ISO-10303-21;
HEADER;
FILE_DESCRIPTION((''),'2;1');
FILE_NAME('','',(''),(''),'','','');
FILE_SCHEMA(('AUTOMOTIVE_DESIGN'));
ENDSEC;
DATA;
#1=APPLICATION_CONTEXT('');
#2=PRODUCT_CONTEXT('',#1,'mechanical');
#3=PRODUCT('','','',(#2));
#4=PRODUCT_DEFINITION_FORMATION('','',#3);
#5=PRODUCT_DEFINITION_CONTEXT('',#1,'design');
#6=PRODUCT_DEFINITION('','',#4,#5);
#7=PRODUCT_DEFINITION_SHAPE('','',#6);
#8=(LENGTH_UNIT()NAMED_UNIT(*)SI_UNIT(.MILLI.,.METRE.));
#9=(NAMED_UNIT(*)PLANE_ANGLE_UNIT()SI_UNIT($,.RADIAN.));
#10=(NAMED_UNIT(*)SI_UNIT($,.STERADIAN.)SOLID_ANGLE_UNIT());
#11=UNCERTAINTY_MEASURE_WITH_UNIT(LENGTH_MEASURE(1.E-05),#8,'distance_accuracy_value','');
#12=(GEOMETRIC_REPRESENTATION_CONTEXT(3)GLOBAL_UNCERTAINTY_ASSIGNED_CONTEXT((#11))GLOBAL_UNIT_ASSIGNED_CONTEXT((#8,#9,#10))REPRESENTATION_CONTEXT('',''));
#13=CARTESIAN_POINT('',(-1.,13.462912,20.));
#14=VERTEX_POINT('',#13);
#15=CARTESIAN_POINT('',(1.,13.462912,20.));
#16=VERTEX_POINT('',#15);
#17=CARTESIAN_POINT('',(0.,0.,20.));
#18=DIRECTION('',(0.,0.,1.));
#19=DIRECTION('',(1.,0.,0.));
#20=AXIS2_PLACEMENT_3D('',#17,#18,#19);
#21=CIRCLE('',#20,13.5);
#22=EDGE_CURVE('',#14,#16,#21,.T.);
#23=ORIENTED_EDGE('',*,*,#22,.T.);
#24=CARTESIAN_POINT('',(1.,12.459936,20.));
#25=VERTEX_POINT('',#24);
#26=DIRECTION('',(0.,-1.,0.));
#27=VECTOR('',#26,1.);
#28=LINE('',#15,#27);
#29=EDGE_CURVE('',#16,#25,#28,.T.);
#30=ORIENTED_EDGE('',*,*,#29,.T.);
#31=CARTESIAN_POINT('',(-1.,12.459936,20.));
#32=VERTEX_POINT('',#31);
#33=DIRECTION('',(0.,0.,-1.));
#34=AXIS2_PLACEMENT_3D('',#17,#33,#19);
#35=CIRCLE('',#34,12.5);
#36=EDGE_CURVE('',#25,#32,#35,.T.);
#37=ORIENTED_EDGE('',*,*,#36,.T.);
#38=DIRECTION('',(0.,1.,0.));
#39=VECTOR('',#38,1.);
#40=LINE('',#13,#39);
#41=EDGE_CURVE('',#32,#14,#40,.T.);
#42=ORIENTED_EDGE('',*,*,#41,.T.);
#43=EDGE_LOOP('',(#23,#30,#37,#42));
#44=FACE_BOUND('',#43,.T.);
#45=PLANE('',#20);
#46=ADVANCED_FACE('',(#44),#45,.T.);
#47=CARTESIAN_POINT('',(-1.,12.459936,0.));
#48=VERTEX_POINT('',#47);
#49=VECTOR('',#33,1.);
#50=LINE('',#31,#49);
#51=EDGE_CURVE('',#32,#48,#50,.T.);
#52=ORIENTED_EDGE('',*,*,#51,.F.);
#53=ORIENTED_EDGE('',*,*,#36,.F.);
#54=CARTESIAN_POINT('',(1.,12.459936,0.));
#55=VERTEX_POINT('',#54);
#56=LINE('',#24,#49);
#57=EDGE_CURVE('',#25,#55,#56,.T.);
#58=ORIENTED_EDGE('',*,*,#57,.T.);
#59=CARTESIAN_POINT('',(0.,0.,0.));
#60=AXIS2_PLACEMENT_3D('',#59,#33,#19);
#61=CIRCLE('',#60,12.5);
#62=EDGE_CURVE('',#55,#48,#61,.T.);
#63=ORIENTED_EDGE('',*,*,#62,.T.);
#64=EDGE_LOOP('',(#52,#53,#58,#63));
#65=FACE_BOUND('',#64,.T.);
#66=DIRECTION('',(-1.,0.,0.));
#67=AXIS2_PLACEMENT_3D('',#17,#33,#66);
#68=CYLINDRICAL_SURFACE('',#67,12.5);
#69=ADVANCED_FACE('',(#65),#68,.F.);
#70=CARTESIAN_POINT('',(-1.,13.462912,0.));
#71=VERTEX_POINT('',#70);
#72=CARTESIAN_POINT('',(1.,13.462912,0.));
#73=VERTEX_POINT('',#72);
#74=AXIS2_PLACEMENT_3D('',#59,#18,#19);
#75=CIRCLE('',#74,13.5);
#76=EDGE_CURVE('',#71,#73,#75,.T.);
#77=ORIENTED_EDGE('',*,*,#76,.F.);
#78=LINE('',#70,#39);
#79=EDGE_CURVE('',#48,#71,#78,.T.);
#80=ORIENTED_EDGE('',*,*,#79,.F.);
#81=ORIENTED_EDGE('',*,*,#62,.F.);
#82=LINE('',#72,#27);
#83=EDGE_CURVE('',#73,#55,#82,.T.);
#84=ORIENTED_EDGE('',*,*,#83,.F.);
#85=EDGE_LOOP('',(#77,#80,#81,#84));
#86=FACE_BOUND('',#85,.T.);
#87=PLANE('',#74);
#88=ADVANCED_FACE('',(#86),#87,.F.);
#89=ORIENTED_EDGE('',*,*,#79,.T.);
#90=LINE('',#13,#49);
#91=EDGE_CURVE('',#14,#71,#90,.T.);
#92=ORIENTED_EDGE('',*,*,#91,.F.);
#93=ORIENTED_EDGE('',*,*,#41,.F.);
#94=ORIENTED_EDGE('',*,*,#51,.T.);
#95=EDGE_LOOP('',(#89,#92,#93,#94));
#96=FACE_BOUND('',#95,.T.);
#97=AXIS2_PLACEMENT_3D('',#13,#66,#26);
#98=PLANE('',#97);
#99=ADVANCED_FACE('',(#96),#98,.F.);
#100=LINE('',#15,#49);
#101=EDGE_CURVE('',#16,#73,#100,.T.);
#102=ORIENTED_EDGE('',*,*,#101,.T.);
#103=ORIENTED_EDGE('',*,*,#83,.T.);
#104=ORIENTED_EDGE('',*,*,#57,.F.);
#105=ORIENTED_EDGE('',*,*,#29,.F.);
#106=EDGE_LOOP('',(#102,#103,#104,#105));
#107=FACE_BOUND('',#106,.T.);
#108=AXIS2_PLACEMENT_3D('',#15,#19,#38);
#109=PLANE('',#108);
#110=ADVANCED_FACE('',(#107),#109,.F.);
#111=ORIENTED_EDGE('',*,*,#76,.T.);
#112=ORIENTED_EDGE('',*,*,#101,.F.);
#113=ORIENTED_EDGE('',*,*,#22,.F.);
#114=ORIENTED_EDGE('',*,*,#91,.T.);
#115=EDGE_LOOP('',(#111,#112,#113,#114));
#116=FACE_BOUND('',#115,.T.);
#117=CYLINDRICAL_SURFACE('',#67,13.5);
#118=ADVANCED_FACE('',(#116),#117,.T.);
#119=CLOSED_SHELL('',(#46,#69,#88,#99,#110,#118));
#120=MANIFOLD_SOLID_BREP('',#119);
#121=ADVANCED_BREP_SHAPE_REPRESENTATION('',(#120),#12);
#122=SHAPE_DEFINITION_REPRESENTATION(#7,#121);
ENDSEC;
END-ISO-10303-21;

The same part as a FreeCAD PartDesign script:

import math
import FreeCAD as App
import Part
import Sketcher
Q = App.Units.Quantity

doc = App.newDocument("Part")
body = doc.addObject("PartDesign::Body", "Body")

# Sketch on XY plane
sketch1 = body.newObject("Sketcher::SketchObject", "Sketch")
sketch1.AttachmentSupport = (doc.getObject("XY_Plane"), [""])
sketch1.MapMode = "FlatFace"
sketch1.addGeometry([
    Part.LineSegment(App.Vector(1, 13.462912, 0), App.Vector(1, 12.459936, 0)),
    Part.ArcOfCircle(Part.Circle(App.Vector(0, 0, 0), App.Vector(0, 0, 1), 12.5), math.radians(94.588566), math.radians(445.411434)),
    Part.LineSegment(App.Vector(-1, 12.459936, 0), App.Vector(-1, 13.462912, 0)),
    Part.ArcOfCircle(Part.Circle(App.Vector(0, 0, 0), App.Vector(0, 0, 1), 13.5), math.radians(94.248023), math.radians(445.751977)),
], False)
sketch1.addConstraint([
    Sketcher.Constraint("Coincident", 0, 2, 1, 2),
    Sketcher.Constraint("Coincident", 1, 1, 2, 1),
    Sketcher.Constraint("Coincident", 2, 2, 3, 1),
    Sketcher.Constraint("Coincident", 3, 2, 0, 1),
    Sketcher.Constraint("Vertical", 0),
    Sketcher.Constraint("Vertical", 2),
    Sketcher.Constraint("Coincident", 1, 3, -1, 1),
    Sketcher.Constraint("Coincident", 3, 3, -1, 1),
    Sketcher.Constraint("Horizontal", 0, 2, 1, 1),
    Sketcher.Constraint("Radius", 1, Q("12.5 mm")),
    Sketcher.Constraint("Radius", 3, Q("13.5 mm")),
    Sketcher.Constraint("DistanceX", -1, 1, 0, 2, Q("1 mm")),
])
pad1 = body.newObject("PartDesign::Pad", "Pad")
pad1.Profile = sketch1
pad1.Length = 20

doc.recompute()
